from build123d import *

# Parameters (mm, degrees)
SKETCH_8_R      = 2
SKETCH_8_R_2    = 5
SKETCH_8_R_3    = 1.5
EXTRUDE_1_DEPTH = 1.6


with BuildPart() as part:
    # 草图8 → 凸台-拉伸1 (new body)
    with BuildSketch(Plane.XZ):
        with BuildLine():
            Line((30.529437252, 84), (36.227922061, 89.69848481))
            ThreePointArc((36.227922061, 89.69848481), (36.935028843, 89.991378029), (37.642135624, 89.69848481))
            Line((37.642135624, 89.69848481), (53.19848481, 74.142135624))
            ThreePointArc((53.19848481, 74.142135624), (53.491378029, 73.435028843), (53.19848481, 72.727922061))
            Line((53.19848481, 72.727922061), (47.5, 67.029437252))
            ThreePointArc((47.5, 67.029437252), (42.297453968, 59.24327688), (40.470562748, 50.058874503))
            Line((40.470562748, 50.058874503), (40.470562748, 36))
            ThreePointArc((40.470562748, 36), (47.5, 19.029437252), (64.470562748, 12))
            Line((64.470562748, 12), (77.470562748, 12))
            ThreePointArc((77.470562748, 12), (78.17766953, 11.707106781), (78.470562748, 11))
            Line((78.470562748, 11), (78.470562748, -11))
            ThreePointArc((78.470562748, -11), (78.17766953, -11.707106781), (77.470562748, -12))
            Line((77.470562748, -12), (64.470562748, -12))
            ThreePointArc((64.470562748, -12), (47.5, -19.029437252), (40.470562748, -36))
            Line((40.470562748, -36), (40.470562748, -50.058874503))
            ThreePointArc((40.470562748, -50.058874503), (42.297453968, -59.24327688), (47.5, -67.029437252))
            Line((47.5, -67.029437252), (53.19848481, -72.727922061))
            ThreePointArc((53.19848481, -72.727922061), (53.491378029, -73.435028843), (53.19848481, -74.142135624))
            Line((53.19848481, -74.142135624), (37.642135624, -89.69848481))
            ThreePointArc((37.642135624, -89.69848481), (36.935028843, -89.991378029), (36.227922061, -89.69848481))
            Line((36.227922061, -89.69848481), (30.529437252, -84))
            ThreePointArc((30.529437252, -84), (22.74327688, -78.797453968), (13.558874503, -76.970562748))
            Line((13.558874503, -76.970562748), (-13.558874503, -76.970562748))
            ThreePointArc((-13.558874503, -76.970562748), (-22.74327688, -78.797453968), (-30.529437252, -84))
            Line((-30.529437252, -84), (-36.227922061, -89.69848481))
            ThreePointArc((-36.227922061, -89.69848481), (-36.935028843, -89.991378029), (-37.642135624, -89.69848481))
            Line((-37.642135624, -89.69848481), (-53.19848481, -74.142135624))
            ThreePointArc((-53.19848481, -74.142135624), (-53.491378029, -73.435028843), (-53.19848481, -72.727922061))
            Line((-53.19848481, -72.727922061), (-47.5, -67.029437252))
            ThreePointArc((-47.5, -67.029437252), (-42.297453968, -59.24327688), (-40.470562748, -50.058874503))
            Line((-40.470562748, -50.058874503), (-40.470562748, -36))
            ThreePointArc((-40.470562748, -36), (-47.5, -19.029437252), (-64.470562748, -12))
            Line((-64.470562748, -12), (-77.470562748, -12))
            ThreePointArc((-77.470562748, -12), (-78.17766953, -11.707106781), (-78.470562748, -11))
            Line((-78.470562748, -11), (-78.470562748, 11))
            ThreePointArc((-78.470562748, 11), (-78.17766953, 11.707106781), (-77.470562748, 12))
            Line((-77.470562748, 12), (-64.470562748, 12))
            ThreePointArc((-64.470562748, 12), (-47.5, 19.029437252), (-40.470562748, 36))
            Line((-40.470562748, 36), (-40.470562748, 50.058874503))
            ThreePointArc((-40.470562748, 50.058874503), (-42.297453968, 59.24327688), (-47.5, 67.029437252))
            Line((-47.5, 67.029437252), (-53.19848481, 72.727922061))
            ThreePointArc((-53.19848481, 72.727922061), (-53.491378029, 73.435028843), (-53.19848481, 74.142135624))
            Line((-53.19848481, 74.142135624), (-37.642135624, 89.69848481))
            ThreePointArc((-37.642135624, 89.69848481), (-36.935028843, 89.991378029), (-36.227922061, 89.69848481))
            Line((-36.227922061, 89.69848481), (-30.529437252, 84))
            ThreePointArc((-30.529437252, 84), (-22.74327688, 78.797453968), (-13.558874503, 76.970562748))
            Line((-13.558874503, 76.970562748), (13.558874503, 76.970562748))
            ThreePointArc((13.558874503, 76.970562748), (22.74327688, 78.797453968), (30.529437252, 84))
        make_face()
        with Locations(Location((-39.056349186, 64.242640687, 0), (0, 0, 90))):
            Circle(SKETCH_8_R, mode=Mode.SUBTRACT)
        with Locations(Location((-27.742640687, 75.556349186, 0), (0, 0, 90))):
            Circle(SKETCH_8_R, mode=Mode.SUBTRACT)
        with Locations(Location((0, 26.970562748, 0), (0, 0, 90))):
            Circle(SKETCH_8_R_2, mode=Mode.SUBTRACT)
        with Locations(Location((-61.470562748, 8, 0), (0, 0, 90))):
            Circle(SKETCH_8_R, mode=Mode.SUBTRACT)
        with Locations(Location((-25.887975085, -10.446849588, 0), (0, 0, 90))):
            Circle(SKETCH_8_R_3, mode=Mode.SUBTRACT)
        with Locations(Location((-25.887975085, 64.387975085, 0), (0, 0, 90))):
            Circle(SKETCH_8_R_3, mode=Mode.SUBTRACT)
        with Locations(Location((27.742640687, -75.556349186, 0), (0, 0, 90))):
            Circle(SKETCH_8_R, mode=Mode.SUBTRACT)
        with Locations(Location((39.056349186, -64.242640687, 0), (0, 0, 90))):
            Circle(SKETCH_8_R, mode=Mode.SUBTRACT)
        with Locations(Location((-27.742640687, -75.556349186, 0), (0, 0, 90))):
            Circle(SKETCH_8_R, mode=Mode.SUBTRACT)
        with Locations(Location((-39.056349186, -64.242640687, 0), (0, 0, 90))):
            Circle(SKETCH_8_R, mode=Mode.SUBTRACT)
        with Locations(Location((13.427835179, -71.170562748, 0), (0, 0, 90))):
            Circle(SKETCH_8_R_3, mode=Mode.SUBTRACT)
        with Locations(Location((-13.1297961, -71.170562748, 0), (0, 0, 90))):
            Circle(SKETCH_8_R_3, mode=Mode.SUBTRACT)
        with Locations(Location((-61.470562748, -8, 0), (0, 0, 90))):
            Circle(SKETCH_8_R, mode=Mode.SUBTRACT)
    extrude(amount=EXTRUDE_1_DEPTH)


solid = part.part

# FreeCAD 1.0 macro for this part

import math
import FreeCAD as App
import Part
import Sketcher

V = App.Vector
Q = App.Units.Quantity

doc = App.newDocument("Part")
body = doc.addObject("PartDesign::Body", "Body")

sketch1 = body.newObject("Sketcher::SketchObject", "Sketch")
sketch1.AttachmentSupport = (doc.getObject("XZ_Plane"), [""])
sketch1.MapMode = "FlatFace"
sketch1.addGeometry(Part.LineSegment(V(36.2, 89.7, 0), V(30.5, 84, 0)), False)
sketch1.addGeometry(Part.ArcOfCircle(Part.Circle(V(13.6, 101, 0), V(0, 0, 1), 24), math.radians(-90), math.radians(-45)), False)
sketch1.addGeometry(Part.LineSegment(V(13.6, 77, 0), V(-13.6, 77, 0)), False)
sketch1.addGeometry(Part.ArcOfCircle(Part.Circle(V(-13.6, 101, 0), V(0, 0, 1), 24), math.radians(-135), math.radians(-90)), False)
sketch1.addGeometry(Part.LineSegment(V(-30.5, 84, 0), V(-36.2, 89.7, 0)), False)
sketch1.addGeometry(Part.ArcOfCircle(Part.Circle(V(-36.9, 89, 0), V(0, 0, 1), 1), math.radians(45), math.radians(135)), False)
sketch1.addGeometry(Part.LineSegment(V(-37.6, 89.7, 0), V(-53.2, 74.1, 0)), False)
sketch1.addGeometry(Part.ArcOfCircle(Part.Circle(V(-52.5, 73.4, 0), V(0, 0, 1), 1), math.radians(135), math.radians(225)), False)
sketch1.addGeometry(Part.LineSegment(V(-53.2, 72.7, 0), V(-47.5, 67, 0)), False)
sketch1.addGeometry(Part.ArcOfCircle(Part.Circle(V(-64.5, 50.1, 0), V(0, 0, 1), 24), math.radians(0), math.radians(45)), False)
sketch1.addGeometry(Part.LineSegment(V(-40.5, 50.1, 0), V(-40.5, 36, 0)), False)
sketch1.addGeometry(Part.ArcOfCircle(Part.Circle(V(-64.5, 36, 0), V(0, 0, 1), 24), math.radians(-90), math.radians(0)), False)
sketch1.addGeometry(Part.LineSegment(V(-64.5, 12, 0), V(-77.5, 12, 0)), False)
sketch1.addGeometry(Part.ArcOfCircle(Part.Circle(V(-77.5, 11, 0), V(0, 0, 1), 1), math.radians(90), math.radians(180)), False)
sketch1.addGeometry(Part.LineSegment(V(-78.5, 11, 0), V(-78.5, -11, 0)), False)
sketch1.addGeometry(Part.ArcOfCircle(Part.Circle(V(-77.5, -11, 0), V(0, 0, 1), 1), math.radians(180), math.radians(270)), False)
sketch1.addGeometry(Part.LineSegment(V(-77.5, -12, 0), V(-64.5, -12, 0)), False)
sketch1.addGeometry(Part.ArcOfCircle(Part.Circle(V(-64.5, -36, 0), V(0, 0, 1), 24), math.radians(0), math.radians(90)), False)
sketch1.addGeometry(Part.LineSegment(V(-40.5, -36, 0), V(-40.5, -50.1, 0)), False)
sketch1.addGeometry(Part.ArcOfCircle(Part.Circle(V(-64.5, -50.1, 0), V(0, 0, 1), 24), math.radians(-45), math.radians(0)), False)
sketch1.addGeometry(Part.LineSegment(V(-47.5, -67, 0), V(-53.2, -72.7, 0)), False)
sketch1.addGeometry(Part.ArcOfCircle(Part.Circle(V(-52.5, -73.4, 0), V(0, 0, 1), 1), math.radians(135), math.radians(225)), False)
sketch1.addGeometry(Part.LineSegment(V(-53.2, -74.1, 0), V(-37.6, -89.7, 0)), False)
sketch1.addGeometry(Part.ArcOfCircle(Part.Circle(V(-36.9, -89, 0), V(0, 0, 1), 1), math.radians(-135), math.radians(-45)), False)
sketch1.addGeometry(Part.LineSegment(V(-36.2, -89.7, 0), V(-30.5, -84, 0)), False)
sketch1.addGeometry(Part.ArcOfCircle(Part.Circle(V(-13.6, -101, 0), V(0, 0, 1), 24), math.radians(90), math.radians(135)), False)
sketch1.addGeometry(Part.LineSegment(V(-13.6, -77, 0), V(13.6, -77, 0)), False)
sketch1.addGeometry(Part.ArcOfCircle(Part.Circle(V(13.6, -101, 0), V(0, 0, 1), 24), math.radians(45), math.radians(90)), False)
sketch1.addGeometry(Part.LineSegment(V(30.5, -84, 0), V(36.2, -89.7, 0)), False)
sketch1.addGeometry(Part.ArcOfCircle(Part.Circle(V(36.9, -89, 0), V(0, 0, 1), 1), math.radians(-135), math.radians(-45)), False)
sketch1.addGeometry(Part.LineSegment(V(37.6, -89.7, 0), V(53.2, -74.1, 0)), False)
sketch1.addGeometry(Part.ArcOfCircle(Part.Circle(V(52.5, -73.4, 0), V(0, 0, 1), 1), math.radians(-45), math.radians(45)), False)
sketch1.addGeometry(Part.LineSegment(V(53.2, -72.7, 0), V(47.5, -67, 0)), False)
sketch1.addGeometry(Part.ArcOfCircle(Part.Circle(V(64.5, -50.1, 0), V(0, 0, 1), 24), math.radians(-180), math.radians(-135)), False)
sketch1.addGeometry(Part.LineSegment(V(40.5, -50.1, 0), V(40.5, -36, 0)), False)
sketch1.addGeometry(Part.ArcOfCircle(Part.Circle(V(64.5, -36, 0), V(0, 0, 1), 24), math.radians(90), math.radians(180)), False)
sketch1.addGeometry(Part.LineSegment(V(64.5, -12, 0), V(77.5, -12, 0)), False)
sketch1.addGeometry(Part.ArcOfCircle(Part.Circle(V(77.5, -11, 0), V(0, 0, 1), 1), math.radians(-90), math.radians(0)), False)
sketch1.addGeometry(Part.LineSegment(V(78.5, -11, 0), V(78.5, 11, 0)), False)
sketch1.addGeometry(Part.ArcOfCircle(Part.Circle(V(77.5, 11, 0), V(0, 0, 1), 1), math.radians(0), math.radians(90)), False)
sketch1.addGeometry(Part.LineSegment(V(77.5, 12, 0), V(64.5, 12, 0)), False)
sketch1.addGeometry(Part.ArcOfCircle(Part.Circle(V(64.5, 36, 0), V(0, 0, 1), 24), math.radians(-180), math.radians(-90)), False)
sketch1.addGeometry(Part.LineSegment(V(40.5, 36, 0), V(40.5, 50.1, 0)), False)
sketch1.addGeometry(Part.ArcOfCircle(Part.Circle(V(64.5, 50.1, 0), V(0, 0, 1), 24), math.radians(135), math.radians(180)), False)
sketch1.addGeometry(Part.LineSegment(V(47.5, 67, 0), V(53.2, 72.7, 0)), False)
sketch1.addGeometry(Part.ArcOfCircle(Part.Circle(V(52.5, 73.4, 0), V(0, 0, 1), 1), math.radians(-45), math.radians(45)), False)
sketch1.addGeometry(Part.LineSegment(V(53.2, 74.1, 0), V(37.6, 89.7, 0)), False)
sketch1.addGeometry(Part.ArcOfCircle(Part.Circle(V(36.9, 89, 0), V(0, 0, 1), 1), math.radians(45), math.radians(135)), False)
sketch1.addGeometry(Part.Circle(V(39.1, -64.2, 0), V(0, 0, 1), 2), False)
sketch1.addGeometry(Part.Circle(V(27.7, -75.6, 0), V(0, 0, 1), 2), False)
sketch1.addGeometry(Part.Circle(V(13.4, -71.2, 0), V(0, 0, 1), 1.5), False)
sketch1.addGeometry(Part.Circle(V(-13.1, -71.2, 0), V(0, 0, 1), 1.5), False)
sketch1.addGeometry(Part.Circle(V(-27.7, -75.6, 0), V(0, 0, 1), 2), False)
sketch1.addGeometry(Part.Circle(V(-39.1, -64.2, 0), V(0, 0, 1), 2), False)
sketch1.addGeometry(Part.Circle(V(-25.9, -10.4, 0), V(0, 0, 1), 1.5), False)
sketch1.addGeometry(Part.Circle(V(-61.5, -8, 0), V(0, 0, 1), 2), False)
sketch1.addGeometry(Part.Circle(V(0, 27, 0), V(0, 0, 1), 5), False)
sketch1.addGeometry(Part.Circle(V(-61.5, 8, 0), V(0, 0, 1), 2), False)
sketch1.addGeometry(Part.Circle(V(-25.9, 64.4, 0), V(0, 0, 1), 1.5), False)
sketch1.addGeometry(Part.Circle(V(-27.7, 75.6, 0), V(0, 0, 1), 2), False)
sketch1.addGeometry(Part.Circle(V(-39.1, 64.2, 0), V(0, 0, 1), 2), False)
sketch1.addConstraint(Sketcher.Constraint("Tangent", 0, 2, 1, 2))
sketch1.addConstraint(Sketcher.Constraint("Tangent", 1, 1, 2, 1))
sketch1.addConstraint(Sketcher.Constraint("Tangent", 2, 2, 3, 2))
sketch1.addConstraint(Sketcher.Constraint("Tangent", 3, 1, 4, 1))
sketch1.addConstraint(Sketcher.Constraint("Tangent", 4, 2, 5, 1))
sketch1.addConstraint(Sketcher.Constraint("Tangent", 5, 2, 6, 1))
sketch1.addConstraint(Sketcher.Constraint("Tangent", 6, 2, 7, 1))
sketch1.addConstraint(Sketcher.Constraint("Tangent", 7, 2, 8, 1))
sketch1.addConstraint(Sketcher.Constraint("Tangent", 8, 2, 9, 2))
sketch1.addConstraint(Sketcher.Constraint("Tangent", 9, 1, 10, 1))
sketch1.addConstraint(Sketcher.Constraint("Tangent", 10, 2, 11, 2))
sketch1.addConstraint(Sketcher.Constraint("Tangent", 11, 1, 12, 1))
sketch1.addConstraint(Sketcher.Constraint("Tangent", 12, 2, 13, 1))
sketch1.addConstraint(Sketcher.Constraint("Tangent", 13, 2, 14, 1))
sketch1.addConstraint(Sketcher.Constraint("Tangent", 14, 2, 15, 1))
sketch1.addConstraint(Sketcher.Constraint("Tangent", 15, 2, 16, 1))
sketch1.addConstraint(Sketcher.Constraint("Tangent", 16, 2, 17, 2))
sketch1.addConstraint(Sketcher.Constraint("Tangent", 17, 1, 18, 1))
sketch1.addConstraint(Sketcher.Constraint("Tangent", 18, 2, 19, 2))
sketch1.addConstraint(Sketcher.Constraint("Tangent", 19, 1, 20, 1))
sketch1.addConstraint(Sketcher.Constraint("Tangent", 20, 2, 21, 1))
sketch1.addConstraint(Sketcher.Constraint("Tangent", 21, 2, 22, 1))
sketch1.addConstraint(Sketcher.Constraint("Tangent", 22, 2, 23, 1))
sketch1.addConstraint(Sketcher.Constraint("Tangent", 23, 2, 24, 1))
sketch1.addConstraint(Sketcher.Constraint("Tangent", 24, 2, 25, 2))
sketch1.addConstraint(Sketcher.Constraint("Tangent", 25, 1, 26, 1))
sketch1.addConstraint(Sketcher.Constraint("Tangent", 26, 2, 27, 2))
sketch1.addConstraint(Sketcher.Constraint("Tangent", 27, 1, 28, 1))
sketch1.addConstraint(Sketcher.Constraint("Tangent", 28, 2, 29, 1))
sketch1.addConstraint(Sketcher.Constraint("Tangent", 29, 2, 30, 1))
sketch1.addConstraint(Sketcher.Constraint("Tangent", 30, 2, 31, 1))
sketch1.addConstraint(Sketcher.Constraint("Tangent", 31, 2, 32, 1))
sketch1.addConstraint(Sketcher.Constraint("Tangent", 32, 2, 33, 2))
sketch1.addConstraint(Sketcher.Constraint("Tangent", 33, 1, 34, 1))
sketch1.addConstraint(Sketcher.Constraint("Tangent", 34, 2, 35, 2))
sketch1.addConstraint(Sketcher.Constraint("Tangent", 35, 1, 36, 1))
sketch1.addConstraint(Sketcher.Constraint("Tangent", 36, 2, 37, 1))
sketch1.addConstraint(Sketcher.Constraint("Tangent", 37, 2, 38, 1))
sketch1.addConstraint(Sketcher.Constraint("Tangent", 38, 2, 39, 1))
sketch1.addConstraint(Sketcher.Constraint("Tangent", 39, 2, 40, 1))
sketch1.addConstraint(Sketcher.Constraint("Tangent", 40, 2, 41, 2))
sketch1.addConstraint(Sketcher.Constraint("Tangent", 41, 1, 42, 1))
sketch1.addConstraint(Sketcher.Constraint("Tangent", 42, 2, 43, 2))
sketch1.addConstraint(Sketcher.Constraint("Tangent", 43, 1, 44, 1))
sketch1.addConstraint(Sketcher.Constraint("Tangent", 44, 2, 45, 1))
sketch1.addConstraint(Sketcher.Constraint("Tangent", 45, 2, 46, 1))
sketch1.addConstraint(Sketcher.Constraint("Tangent", 46, 2, 47, 1))
sketch1.addConstraint(Sketcher.Constraint("Tangent", 47, 2, 0, 1))
sketch1.addConstraint(Sketcher.Constraint("Horizontal", 2))
sketch1.addConstraint(Sketcher.Constraint("Vertical", 10))
sketch1.addConstraint(Sketcher.Constraint("Horizontal", 12))
sketch1.addConstraint(Sketcher.Constraint("Vertical", 14))
sketch1.addConstraint(Sketcher.Constraint("Horizontal", 16))
sketch1.addConstraint(Sketcher.Constraint("Vertical", 18))
sketch1.addConstraint(Sketcher.Constraint("Horizontal", 26))
sketch1.addConstraint(Sketcher.Constraint("Vertical", 34))
sketch1.addConstraint(Sketcher.Constraint("Horizontal", 36))
sketch1.addConstraint(Sketcher.Constraint("Vertical", 38))
sketch1.addConstraint(Sketcher.Constraint("Horizontal", 40))
sketch1.addConstraint(Sketcher.Constraint("Vertical", 42))
sketch1.addConstraint(Sketcher.Constraint("Equal", 1, 3))
sketch1.addConstraint(Sketcher.Constraint("Equal", 5, 7))
sketch1.addConstraint(Sketcher.Constraint("Equal", 3, 9))
sketch1.addConstraint(Sketcher.Constraint("Equal", 9, 11))
sketch1.addConstraint(Sketcher.Constraint("Equal", 7, 13))
sketch1.addConstraint(Sketcher.Constraint("Equal", 13, 15))
sketch1.addConstraint(Sketcher.Constraint("Equal", 11, 17))
sketch1.addConstraint(Sketcher.Constraint("Equal", 17, 19))
sketch1.addConstraint(Sketcher.Constraint("Equal", 15, 21))
sketch1.addConstraint(Sketcher.Constraint("Equal", 21, 23))
sketch1.addConstraint(Sketcher.Constraint("Equal", 19, 25))
sketch1.addConstraint(Sketcher.Constraint("Equal", 25, 27))
sketch1.addConstraint(Sketcher.Constraint("Equal", 23, 29))
sketch1.addConstraint(Sketcher.Constraint("Equal", 29, 31))
sketch1.addConstraint(Sketcher.Constraint("Equal", 27, 33))
sketch1.addConstraint(Sketcher.Constraint("Equal", 33, 35))
sketch1.addConstraint(Sketcher.Constraint("Equal", 31, 37))
sketch1.addConstraint(Sketcher.Constraint("Equal", 37, 39))
sketch1.addConstraint(Sketcher.Constraint("Equal", 35, 41))
sketch1.addConstraint(Sketcher.Constraint("Equal", 41, 43))
sketch1.addConstraint(Sketcher.Constraint("Equal", 39, 45))
sketch1.addConstraint(Sketcher.Constraint("Equal", 45, 47))
sketch1.addConstraint(Sketcher.Constraint("Equal", 48, 49))
sketch1.addConstraint(Sketcher.Constraint("Equal", 50, 51))
sketch1.addConstraint(Sketcher.Constraint("Equal", 49, 52))
sketch1.addConstraint(Sketcher.Constraint("Equal", 52, 53))
sketch1.addConstraint(Sketcher.Constraint("Equal", 51, 54))
sketch1.addConstraint(Sketcher.Constraint("Equal", 53, 55))
sketch1.addConstraint(Sketcher.Constraint("Equal", 55, 57))
sketch1.addConstraint(Sketcher.Constraint("Equal", 54, 58))
sketch1.addConstraint(Sketcher.Constraint("Equal", 57, 59))
sketch1.addConstraint(Sketcher.Constraint("Equal", 59, 60))
sketch1.addConstraint(Sketcher.Constraint("Symmetric", 1, 3, 25, 3, -1, 1))
sketch1.addConstraint(Sketcher.Constraint("Symmetric", 5, 3, 29, 3, -1, 1))
sketch1.addConstraint(Sketcher.Constraint("Symmetric", 7, 3, 31, 3, -1, 1))
sketch1.addConstraint(Sketcher.Constraint("Symmetric", 9, 3, 33, 3, -1, 1))
sketch1.addConstraint(Sketcher.Constraint("Symmetric", 13, 3, 37, 3, -1, 1))
sketch1.addConstraint(Sketcher.Constraint("Symmetric", 17, 3, 41, 3, -1, 1))
sketch1.addConstraint(Sketcher.Constraint("Symmetric", 21, 3, 45, 3, -1, 1))
sketch1.addConstraint(Sketcher.Constraint("Symmetric", 23, 3, 47, 3, -1, 1))
sketch1.addConstraint(Sketcher.Constraint("Symmetric", 49, 3, 59, 3, -1, 1))
sketch1.addConstraint(Sketcher.Constraint("Symmetric", 48, 3, 60, 3, -1, 1))
sketch1.addConstraint(Sketcher.Constraint("Symmetric", 23, 3, 29, 3, -2))
sketch1.addConstraint(Sketcher.Constraint("Symmetric", 21, 3, 31, 3, -2))
sketch1.addConstraint(Sketcher.Constraint("Symmetric", 19, 3, 33, 3, -2))
sketch1.addConstraint(Sketcher.Constraint("Symmetric", 49, 3, 52, 3, -2))
sketch1.addConstraint(Sketcher.Constraint("Symmetric", 48, 3, 53, 3, -2))
sketch1.addConstraint(Sketcher.Constraint("Symmetric", 55, 3, 57, 3, -1))
sketch1.addConstraint(Sketcher.Constraint("PointOnObject", 56, 3, -2))
sketch1.addConstraint(Sketcher.Constraint("Perpendicular", 0, 4))
sketch1.addConstraint(Sketcher.Constraint("Perpendicular", 4, 6))
sketch1.addConstraint(Sketcher.Constraint("Perpendicular", 6, 8))
sketch1.addConstraint(Sketcher.Constraint("Perpendicular", 8, 20))
sketch1.addConstraint(Sketcher.Constraint("Perpendicular", 24, 28))
sketch1.addConstraint(Sketcher.Constraint("Perpendicular", 32, 44))
sketch1.addConstraint(Sketcher.Constraint("Horizontal", 17, 3, 35, 3))
sketch1.addConstraint(Sketcher.Constraint("Horizontal", 50, 3, 51, 3))
sketch1.addConstraint(Sketcher.Constraint("Vertical", 54, 3, 58, 3))
sketch1.addConstraint(Sketcher.Constraint("Equal", 4, 8))
sketch1.addConstraint(Sketcher.Constraint("Diameter", 48, Q("4 mm")))
sketch1.addConstraint(Sketcher.Constraint("Diameter", 50, Q("3 mm")))
sketch1.addConstraint(Sketcher.Constraint("Diameter", 56, Q("10 mm")))
sketch1.addConstraint(Sketcher.Constraint("Radius", 1, Q("24 mm")))
sketch1.addConstraint(Sketcher.Constraint("Radius", 5, Q("1 mm")))
sketch1.addConstraint(Sketcher.Constraint("DistanceX", 12, 2, 12, 1, Q("13 mm")))
sketch1.addConstraint(Sketcher.Constraint("DistanceY", 14, 2, 14, 1, Q("22 mm")))
sketch1.addConstraint(Sketcher.Constraint("Distance", 6, Q("22 mm")))
sketch1.addConstraint(Sketcher.Constraint("DistanceY", 55, 3, -1, 1, Q("8 mm")))
sketch1.addConstraint(Sketcher.Constraint("DistanceY", -1, 1, 0, 2, Q("84 mm")))
sketch1.addConstraint(Sketcher.Constraint("DistanceX", 8, 2, -1, 1, Q("47.5 mm")))
sketch1.addConstraint(Sketcher.Constraint("DistanceX", 5, 3, -1, 1, Q("36.935029 mm")))
sketch1.addConstraint(Sketcher.Constraint("DistanceX", -1, 1, 48, 3, Q("39.056349 mm")))
sketch1.addConstraint(Sketcher.Constraint("DistanceY", 48, 3, -1, 1, Q("64.242641 mm")))
sketch1.addConstraint(Sketcher.Constraint("DistanceX", -1, 1, 49, 3, Q("27.742641 mm")))
sketch1.addConstraint(Sketcher.Constraint("DistanceY", 49, 3, -1, 1, Q("75.556349 mm")))
sketch1.addConstraint(Sketcher.Constraint("DistanceY", 54, 3, -1, 1, Q("10.44685 mm")))
sketch1.addConstraint(Sketcher.Constraint("DistanceX", -1, 1, 50, 3, Q("13.427835 mm")))
sketch1.addConstraint(Sketcher.Constraint("DistanceY", 50, 3, -1, 1, Q("71.170563 mm")))
sketch1.addConstraint(Sketcher.Constraint("DistanceX", 51, 3, -1, 1, Q("13.129796 mm")))
sketch1.addConstraint(Sketcher.Constraint("DistanceX", 54, 3, -1, 1, Q("25.887975 mm")))
sketch1.addConstraint(Sketcher.Constraint("DistanceX", 55, 3, -1, 1, Q("61.470563 mm")))
sketch1.addConstraint(Sketcher.Constraint("DistanceY", -1, 1, 56, 3, Q("26.970563 mm")))
sketch1.addConstraint(Sketcher.Constraint("DistanceY", -1, 1, 58, 3, Q("64.387975 mm")))
pad1 = body.newObject("PartDesign::Pad", "Pad")
pad1.Profile = sketch1
pad1.Length = 1.6

doc.recompute()
